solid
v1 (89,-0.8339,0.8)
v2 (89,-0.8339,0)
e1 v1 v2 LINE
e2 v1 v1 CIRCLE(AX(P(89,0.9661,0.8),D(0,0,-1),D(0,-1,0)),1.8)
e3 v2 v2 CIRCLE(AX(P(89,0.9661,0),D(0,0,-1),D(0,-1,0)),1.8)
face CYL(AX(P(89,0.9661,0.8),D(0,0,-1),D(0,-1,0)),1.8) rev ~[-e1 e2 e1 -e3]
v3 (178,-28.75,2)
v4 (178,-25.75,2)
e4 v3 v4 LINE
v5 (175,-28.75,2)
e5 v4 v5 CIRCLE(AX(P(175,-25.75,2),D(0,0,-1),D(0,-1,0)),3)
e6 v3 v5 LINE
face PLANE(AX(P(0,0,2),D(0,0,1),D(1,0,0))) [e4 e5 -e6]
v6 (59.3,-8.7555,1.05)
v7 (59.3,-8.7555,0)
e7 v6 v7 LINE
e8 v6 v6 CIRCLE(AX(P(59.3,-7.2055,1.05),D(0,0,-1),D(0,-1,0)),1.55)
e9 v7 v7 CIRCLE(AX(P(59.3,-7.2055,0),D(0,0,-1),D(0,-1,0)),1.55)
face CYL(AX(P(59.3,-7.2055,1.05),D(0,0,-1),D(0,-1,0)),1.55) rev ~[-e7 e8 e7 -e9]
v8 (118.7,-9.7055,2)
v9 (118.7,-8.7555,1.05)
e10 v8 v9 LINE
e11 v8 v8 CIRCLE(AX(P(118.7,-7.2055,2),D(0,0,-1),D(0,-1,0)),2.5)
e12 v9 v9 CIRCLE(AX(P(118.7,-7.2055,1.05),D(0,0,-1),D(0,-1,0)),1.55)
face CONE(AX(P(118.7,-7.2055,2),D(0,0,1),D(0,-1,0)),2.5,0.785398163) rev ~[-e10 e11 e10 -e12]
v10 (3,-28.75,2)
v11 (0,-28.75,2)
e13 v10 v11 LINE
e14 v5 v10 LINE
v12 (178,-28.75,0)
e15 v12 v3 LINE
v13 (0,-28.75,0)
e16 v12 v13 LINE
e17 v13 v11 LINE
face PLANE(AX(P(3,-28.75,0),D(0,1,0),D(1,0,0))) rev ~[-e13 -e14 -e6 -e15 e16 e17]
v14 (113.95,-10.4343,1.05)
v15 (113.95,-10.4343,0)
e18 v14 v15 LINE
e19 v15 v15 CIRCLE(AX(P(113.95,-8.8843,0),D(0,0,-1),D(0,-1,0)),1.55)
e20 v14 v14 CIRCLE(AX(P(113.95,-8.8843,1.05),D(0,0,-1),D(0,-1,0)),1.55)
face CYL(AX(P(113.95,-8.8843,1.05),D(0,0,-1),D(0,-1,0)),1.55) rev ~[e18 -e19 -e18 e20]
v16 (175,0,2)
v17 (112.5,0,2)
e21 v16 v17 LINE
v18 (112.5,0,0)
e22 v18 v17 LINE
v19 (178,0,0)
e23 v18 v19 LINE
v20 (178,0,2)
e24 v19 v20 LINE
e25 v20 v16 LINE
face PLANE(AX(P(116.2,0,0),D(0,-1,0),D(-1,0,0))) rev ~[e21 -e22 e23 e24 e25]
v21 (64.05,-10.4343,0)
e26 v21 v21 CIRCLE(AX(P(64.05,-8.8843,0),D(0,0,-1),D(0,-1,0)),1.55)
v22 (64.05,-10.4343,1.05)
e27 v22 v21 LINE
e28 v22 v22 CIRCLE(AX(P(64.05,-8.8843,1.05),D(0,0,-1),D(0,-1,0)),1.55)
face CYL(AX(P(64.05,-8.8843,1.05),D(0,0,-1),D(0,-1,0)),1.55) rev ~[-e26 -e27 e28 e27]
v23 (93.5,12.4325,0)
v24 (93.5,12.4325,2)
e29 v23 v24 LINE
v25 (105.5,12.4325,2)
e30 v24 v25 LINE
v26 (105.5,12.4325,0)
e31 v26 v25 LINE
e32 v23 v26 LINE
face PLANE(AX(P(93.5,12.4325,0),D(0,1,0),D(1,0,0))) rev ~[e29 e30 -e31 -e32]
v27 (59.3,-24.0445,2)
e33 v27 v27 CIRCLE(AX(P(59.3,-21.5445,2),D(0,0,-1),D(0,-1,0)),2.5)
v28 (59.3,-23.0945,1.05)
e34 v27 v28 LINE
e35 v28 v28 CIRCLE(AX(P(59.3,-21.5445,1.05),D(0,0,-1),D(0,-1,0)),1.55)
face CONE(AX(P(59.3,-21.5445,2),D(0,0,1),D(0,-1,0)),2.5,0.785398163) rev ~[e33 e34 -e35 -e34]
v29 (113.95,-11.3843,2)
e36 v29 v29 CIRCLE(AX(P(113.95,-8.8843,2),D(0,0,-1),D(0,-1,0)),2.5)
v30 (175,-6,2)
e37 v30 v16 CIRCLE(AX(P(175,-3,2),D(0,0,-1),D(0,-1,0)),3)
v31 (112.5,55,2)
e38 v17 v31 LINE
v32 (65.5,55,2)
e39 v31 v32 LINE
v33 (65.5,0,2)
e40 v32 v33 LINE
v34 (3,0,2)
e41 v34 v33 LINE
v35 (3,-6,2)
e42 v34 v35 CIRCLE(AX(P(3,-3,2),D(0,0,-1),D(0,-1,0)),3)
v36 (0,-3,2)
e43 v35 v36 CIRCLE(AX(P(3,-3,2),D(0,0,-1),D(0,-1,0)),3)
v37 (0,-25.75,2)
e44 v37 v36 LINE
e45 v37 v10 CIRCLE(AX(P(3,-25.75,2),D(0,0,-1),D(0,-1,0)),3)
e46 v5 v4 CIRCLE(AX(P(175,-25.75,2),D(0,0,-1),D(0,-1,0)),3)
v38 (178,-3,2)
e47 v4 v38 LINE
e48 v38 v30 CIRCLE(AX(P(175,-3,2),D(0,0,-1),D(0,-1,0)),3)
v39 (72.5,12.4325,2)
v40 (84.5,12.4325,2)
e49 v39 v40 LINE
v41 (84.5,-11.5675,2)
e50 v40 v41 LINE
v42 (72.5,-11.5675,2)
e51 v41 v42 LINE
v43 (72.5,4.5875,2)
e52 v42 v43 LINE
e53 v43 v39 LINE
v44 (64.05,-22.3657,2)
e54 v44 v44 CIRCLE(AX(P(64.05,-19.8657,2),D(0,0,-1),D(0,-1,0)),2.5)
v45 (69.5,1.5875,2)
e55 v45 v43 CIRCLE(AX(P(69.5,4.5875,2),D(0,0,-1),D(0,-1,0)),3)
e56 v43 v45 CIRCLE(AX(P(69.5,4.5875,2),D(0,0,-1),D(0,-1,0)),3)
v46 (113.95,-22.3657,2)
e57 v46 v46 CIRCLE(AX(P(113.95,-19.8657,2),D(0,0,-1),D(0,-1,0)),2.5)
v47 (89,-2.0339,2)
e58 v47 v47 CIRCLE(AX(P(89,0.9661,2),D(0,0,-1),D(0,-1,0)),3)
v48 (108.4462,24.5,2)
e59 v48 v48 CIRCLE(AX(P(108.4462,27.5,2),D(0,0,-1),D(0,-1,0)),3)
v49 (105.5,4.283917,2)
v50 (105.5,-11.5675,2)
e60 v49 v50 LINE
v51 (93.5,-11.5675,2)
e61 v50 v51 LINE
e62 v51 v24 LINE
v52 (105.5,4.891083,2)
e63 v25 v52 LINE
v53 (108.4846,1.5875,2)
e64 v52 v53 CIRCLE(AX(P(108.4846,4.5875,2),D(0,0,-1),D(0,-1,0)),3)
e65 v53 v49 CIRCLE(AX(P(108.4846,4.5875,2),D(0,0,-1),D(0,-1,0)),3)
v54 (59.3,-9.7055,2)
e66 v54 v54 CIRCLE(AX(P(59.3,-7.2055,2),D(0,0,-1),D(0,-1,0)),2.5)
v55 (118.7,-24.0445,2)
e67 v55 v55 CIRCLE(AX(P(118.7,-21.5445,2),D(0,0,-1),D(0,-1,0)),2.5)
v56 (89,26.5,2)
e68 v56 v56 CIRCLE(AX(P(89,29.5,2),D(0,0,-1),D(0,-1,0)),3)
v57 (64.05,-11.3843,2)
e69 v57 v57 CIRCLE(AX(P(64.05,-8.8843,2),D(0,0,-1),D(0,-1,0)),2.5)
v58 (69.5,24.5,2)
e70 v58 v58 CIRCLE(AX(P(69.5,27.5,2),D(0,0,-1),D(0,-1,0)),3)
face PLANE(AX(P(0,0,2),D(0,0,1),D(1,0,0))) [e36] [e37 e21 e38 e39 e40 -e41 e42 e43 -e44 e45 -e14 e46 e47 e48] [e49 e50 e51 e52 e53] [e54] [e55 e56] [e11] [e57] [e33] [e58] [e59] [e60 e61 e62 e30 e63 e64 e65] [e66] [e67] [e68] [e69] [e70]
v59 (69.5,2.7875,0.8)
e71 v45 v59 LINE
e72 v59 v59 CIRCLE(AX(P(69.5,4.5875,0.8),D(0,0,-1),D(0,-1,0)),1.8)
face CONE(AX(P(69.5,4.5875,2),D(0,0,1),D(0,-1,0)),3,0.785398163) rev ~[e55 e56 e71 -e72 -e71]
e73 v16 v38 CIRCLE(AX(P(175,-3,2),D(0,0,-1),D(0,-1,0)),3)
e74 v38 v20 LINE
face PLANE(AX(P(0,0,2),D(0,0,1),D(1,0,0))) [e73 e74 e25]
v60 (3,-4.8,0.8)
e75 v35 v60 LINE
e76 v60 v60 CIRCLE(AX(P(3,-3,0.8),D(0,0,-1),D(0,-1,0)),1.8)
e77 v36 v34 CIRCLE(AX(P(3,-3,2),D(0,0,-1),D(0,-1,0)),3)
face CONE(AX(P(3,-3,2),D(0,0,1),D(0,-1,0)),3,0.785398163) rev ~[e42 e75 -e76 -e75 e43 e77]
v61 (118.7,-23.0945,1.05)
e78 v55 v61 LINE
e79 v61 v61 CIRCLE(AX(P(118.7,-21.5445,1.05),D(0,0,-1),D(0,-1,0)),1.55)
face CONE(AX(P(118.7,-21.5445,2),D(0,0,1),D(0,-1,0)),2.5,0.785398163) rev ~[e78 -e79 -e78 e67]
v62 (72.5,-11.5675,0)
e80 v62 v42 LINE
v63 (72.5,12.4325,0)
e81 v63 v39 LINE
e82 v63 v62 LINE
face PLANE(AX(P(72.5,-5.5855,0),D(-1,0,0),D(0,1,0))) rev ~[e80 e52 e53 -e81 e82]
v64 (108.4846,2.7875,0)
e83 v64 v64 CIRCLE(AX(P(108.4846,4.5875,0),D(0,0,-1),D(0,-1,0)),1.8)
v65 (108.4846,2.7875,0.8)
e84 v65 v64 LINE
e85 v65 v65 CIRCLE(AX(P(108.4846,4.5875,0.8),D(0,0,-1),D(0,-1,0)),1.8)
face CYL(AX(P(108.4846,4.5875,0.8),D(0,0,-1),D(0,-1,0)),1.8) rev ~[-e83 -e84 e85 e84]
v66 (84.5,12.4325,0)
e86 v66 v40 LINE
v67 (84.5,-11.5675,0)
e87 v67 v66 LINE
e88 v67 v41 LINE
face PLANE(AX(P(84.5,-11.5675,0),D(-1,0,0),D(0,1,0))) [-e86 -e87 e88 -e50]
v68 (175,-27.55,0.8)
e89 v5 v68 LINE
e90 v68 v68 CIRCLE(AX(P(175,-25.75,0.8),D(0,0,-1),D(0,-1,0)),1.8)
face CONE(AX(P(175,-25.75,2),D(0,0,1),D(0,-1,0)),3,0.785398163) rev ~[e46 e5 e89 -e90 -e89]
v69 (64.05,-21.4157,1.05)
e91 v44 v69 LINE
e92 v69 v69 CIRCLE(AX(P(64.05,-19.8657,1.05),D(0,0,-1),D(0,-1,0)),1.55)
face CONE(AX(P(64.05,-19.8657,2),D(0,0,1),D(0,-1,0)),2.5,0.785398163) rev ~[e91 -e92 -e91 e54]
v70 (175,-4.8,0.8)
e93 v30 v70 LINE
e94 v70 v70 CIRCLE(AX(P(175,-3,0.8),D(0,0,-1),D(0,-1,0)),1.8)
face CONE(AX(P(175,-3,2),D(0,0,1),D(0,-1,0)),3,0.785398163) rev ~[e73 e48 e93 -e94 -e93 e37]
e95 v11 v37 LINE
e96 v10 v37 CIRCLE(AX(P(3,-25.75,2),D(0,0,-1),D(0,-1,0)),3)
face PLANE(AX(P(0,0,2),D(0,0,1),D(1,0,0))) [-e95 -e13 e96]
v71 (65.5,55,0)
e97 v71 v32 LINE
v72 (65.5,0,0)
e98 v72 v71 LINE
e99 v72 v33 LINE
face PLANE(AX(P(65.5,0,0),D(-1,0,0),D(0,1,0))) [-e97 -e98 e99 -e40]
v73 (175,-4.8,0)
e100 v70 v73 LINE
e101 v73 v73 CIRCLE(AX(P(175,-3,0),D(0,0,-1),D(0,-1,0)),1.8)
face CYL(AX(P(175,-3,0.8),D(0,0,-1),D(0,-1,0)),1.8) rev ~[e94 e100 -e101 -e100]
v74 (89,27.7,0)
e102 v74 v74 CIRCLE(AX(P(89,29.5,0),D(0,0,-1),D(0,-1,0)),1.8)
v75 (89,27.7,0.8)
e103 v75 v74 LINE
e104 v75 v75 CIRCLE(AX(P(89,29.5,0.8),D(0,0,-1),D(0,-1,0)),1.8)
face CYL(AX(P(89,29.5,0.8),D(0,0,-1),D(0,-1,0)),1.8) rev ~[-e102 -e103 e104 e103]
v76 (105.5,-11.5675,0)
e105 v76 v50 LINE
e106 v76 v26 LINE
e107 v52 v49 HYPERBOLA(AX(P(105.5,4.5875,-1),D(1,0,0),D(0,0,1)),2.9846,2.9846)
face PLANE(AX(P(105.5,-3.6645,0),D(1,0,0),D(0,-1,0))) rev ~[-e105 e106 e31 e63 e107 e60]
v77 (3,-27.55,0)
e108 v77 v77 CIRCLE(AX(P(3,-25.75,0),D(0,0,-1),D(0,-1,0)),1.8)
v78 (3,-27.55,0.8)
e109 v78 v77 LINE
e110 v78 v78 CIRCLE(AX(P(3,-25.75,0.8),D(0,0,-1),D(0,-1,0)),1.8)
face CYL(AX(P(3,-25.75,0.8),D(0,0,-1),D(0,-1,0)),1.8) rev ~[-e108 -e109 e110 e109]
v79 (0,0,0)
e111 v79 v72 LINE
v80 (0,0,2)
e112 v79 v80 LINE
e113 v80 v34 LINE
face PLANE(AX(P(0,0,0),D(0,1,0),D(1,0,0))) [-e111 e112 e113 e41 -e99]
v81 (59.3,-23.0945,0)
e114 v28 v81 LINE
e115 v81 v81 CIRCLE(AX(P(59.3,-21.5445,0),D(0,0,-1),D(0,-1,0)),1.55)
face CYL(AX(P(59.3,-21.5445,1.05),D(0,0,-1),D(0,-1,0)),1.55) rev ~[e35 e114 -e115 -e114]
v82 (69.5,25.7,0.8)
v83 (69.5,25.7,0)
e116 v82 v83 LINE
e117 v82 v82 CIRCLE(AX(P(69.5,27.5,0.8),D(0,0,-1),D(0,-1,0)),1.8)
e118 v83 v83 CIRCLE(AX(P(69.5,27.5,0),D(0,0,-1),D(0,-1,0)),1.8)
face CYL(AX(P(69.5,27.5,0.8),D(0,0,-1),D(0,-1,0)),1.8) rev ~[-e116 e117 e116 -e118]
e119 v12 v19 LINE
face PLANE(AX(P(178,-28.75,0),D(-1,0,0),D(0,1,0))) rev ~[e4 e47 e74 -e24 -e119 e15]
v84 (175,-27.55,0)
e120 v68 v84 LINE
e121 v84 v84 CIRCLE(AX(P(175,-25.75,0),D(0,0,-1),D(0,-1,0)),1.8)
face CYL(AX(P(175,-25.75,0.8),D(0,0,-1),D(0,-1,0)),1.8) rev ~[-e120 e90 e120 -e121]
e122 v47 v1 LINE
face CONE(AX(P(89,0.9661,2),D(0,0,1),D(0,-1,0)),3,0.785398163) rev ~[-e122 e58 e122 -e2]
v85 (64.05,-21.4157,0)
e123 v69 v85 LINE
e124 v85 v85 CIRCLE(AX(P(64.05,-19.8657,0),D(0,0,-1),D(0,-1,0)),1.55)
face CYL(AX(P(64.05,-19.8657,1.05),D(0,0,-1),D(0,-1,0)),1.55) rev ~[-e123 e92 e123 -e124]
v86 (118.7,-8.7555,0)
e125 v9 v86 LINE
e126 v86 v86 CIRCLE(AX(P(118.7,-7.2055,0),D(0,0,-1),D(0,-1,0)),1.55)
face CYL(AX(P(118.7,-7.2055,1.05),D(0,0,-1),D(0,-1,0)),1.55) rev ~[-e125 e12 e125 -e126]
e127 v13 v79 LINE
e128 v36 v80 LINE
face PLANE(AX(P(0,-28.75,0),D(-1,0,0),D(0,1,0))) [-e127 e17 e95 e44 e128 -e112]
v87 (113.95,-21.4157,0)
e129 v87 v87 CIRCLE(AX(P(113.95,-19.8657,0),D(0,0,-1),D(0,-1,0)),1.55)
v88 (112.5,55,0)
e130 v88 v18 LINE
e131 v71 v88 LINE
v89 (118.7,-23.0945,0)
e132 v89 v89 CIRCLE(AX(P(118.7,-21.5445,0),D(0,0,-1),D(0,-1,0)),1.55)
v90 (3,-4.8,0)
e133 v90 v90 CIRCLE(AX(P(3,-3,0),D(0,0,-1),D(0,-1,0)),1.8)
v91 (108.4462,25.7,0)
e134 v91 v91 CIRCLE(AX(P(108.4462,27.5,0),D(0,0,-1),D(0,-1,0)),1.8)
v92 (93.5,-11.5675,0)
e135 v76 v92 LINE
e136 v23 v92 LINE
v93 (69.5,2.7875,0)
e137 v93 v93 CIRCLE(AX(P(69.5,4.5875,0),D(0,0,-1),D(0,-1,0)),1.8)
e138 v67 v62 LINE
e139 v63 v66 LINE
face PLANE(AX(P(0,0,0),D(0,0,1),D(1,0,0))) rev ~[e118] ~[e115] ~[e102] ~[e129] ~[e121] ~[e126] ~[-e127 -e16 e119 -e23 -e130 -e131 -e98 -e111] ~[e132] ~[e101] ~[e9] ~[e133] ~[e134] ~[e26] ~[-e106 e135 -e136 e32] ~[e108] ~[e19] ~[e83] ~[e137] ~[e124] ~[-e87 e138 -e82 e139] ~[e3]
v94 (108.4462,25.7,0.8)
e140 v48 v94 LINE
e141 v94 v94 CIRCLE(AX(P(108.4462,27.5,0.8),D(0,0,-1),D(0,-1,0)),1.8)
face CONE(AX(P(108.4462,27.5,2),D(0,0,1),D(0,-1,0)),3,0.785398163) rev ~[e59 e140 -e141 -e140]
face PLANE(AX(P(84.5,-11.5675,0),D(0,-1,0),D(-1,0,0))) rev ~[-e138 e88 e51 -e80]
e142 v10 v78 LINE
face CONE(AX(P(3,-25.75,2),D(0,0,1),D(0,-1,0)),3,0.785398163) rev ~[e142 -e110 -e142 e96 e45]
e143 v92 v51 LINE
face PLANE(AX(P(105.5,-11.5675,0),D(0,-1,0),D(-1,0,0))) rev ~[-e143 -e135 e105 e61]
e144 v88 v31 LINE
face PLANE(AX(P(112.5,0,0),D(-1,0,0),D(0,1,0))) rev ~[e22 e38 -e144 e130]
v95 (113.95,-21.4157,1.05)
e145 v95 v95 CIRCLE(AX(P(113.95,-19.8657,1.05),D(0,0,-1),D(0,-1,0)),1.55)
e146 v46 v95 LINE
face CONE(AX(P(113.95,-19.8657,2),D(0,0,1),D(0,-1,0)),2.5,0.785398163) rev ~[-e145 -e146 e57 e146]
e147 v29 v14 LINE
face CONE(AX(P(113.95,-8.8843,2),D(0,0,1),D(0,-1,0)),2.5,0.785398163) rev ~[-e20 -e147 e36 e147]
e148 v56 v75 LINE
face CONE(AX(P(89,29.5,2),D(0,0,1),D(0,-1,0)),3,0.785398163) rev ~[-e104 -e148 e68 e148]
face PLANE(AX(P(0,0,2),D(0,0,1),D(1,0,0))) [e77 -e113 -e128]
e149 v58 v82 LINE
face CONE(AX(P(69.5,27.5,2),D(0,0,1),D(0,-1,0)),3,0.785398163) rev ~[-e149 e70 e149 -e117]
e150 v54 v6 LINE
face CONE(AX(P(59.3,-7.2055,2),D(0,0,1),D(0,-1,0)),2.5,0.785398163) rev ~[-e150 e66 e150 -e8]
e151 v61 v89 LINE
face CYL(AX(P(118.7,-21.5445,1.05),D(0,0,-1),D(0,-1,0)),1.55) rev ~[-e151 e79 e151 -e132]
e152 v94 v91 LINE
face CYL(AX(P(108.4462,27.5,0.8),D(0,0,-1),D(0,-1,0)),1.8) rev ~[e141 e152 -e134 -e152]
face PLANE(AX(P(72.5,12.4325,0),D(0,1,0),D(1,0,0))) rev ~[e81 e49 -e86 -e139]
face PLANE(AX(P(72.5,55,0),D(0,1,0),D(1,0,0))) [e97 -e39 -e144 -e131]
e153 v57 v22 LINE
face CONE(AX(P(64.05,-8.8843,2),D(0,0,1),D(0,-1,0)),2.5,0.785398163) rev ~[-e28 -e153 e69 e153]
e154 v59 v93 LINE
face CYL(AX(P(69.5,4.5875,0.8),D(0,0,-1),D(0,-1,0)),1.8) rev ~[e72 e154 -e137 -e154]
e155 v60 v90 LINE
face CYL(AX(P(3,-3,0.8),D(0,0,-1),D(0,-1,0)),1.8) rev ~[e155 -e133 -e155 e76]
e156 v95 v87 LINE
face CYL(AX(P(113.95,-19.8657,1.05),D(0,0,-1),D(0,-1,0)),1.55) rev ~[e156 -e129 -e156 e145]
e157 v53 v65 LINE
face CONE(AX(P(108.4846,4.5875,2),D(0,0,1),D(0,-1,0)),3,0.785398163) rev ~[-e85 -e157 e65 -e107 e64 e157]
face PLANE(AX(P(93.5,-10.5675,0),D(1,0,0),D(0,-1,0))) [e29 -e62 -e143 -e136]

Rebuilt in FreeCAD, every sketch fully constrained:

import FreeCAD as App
import Part
import Sketcher
from FreeCAD import Vector


def add_polygon(sketch, points):
    """Adds a closed chain of lines whose ends are joined by coincident constraints."""
    first, n = sketch.GeometryCount, len(points)
    for a, b in zip(points, points[1:] + points[:1]):
        sketch.addGeometry(Part.LineSegment(App.Vector(*a, 0), App.Vector(*b, 0)), False)
    for i in range(n):
        sketch.addConstraint(Sketcher.Constraint("Coincident", first + i, 2, first + (i + 1) % n, 1))

doc = App.newDocument("Part")
body = doc.addObject("PartDesign::Body", "Body")

# Sketch on XY plane
sketch1 = doc.addObject("Sketcher::SketchObject", "Sketch")
body.addObject(sketch1)
sketch1.AttachmentSupport = (doc.XY_Plane, [""])
sketch1.MapMode = "FlatFace"
add_polygon(sketch1, [(0, 0), (0, -29), (178, -29), (178, 0), (112, 0), (112, 55), (66, 55), (66, 0)])  # lines 0-7
add_polygon(sketch1, [(72, 12), (84, 12), (84, -12), (72, -12)])  # lines 8-11
add_polygon(sketch1, [(106, -12), (94, -12), (94, 12), (106, 12)])  # lines 12-15
sketch1.addConstraint([
    Sketcher.Constraint("Vertical", 0),
    Sketcher.Constraint("Horizontal", 1),
    Sketcher.Constraint("Vertical", 2),
    Sketcher.Constraint("Horizontal", 3),
    Sketcher.Constraint("Vertical", 4),
    Sketcher.Constraint("Horizontal", 5),
    Sketcher.Constraint("Vertical", 6),
    Sketcher.Constraint("Horizontal", 7),
    Sketcher.Constraint("Horizontal", 8),
    Sketcher.Constraint("Vertical", 9),
    Sketcher.Constraint("Horizontal", 10),
    Sketcher.Constraint("Vertical", 11),
    Sketcher.Constraint("Horizontal", 12),
    Sketcher.Constraint("Vertical", 13),
    Sketcher.Constraint("Horizontal", 14),
    Sketcher.Constraint("Vertical", 15),
    Sketcher.Constraint("Coincident", 7, 2, -1, 1),
    Sketcher.Constraint("PointOnObject", 2, 2, -1),
    Sketcher.Constraint("Horizontal", 10, 2, 12, 2),
    Sketcher.Constraint("Horizontal", 11, 2, 13, 2),
    Sketcher.Constraint("Equal", 3, 7),
    Sketcher.Constraint("Equal", 10, 12),
    Sketcher.Constraint("DistanceX", 1, 1, 1, 2, 178.0),
    Sketcher.Constraint("DistanceX", 5, 2, 5, 1, 47.0),
    Sketcher.Constraint("DistanceX", 8, 1, 8, 2, 12.0),
    Sketcher.Constraint("DistanceY", 4, 1, 4, 2, 55.0),
    Sketcher.Constraint("DistanceY", 9, 2, 9, 1, 24.0),
    Sketcher.Constraint("DistanceX", 6, 2, 8, 2, 19.0),
    Sketcher.Constraint("DistanceX", 9, 2, 12, 2, 9.0),
    Sketcher.Constraint("DistanceY", 0, 2, 0, 1, 28.75),
    Sketcher.Constraint("DistanceY", -1, 1, 8, 2, 12.4325),
])
pad1 = doc.addObject("PartDesign::Pad", "Pad")
body.addObject(pad1)
pad1.Profile = sketch1
pad1.Length = 2

# Sketch on XY plane
sketch2 = doc.addObject("Sketcher::SketchObject", "Sketch001")
body.addObject(sketch2)
sketch2.AttachmentSupport = (doc.XY_Plane, [""])
sketch2.MapMode = "FlatFace"
sketch2.AttachmentOffset = App.Placement(Vector(0, 0, 2), App.Rotation())
sketch2.addGeometry([
    Part.Circle(Vector(3, -3, 0), Vector(0, 0, 1), 1.8),  # 0
    Part.Circle(Vector(3, -25.8, 0), Vector(0, 0, 1), 1.8),  # 1
    Part.Circle(Vector(175, -3, 0), Vector(0, 0, 1), 1.8),  # 2
    Part.Circle(Vector(175, -25.8, 0), Vector(0, 0, 1), 1.8),  # 3
    Part.Circle(Vector(108.5, 4.6, 0), Vector(0, 0, 1), 1.8),  # 4
    Part.Circle(Vector(89, 1, 0), Vector(0, 0, 1), 1.8),  # 5
    Part.Circle(Vector(69.5, 4.6, 0), Vector(0, 0, 1), 1.8),  # 6
    Part.Circle(Vector(69.5, 27.5, 0), Vector(0, 0, 1), 1.8),  # 7
    Part.Circle(Vector(89, 29.5, 0), Vector(0, 0, 1), 1.8),  # 8
    Part.Circle(Vector(108.4, 27.5, 0), Vector(0, 0, 1), 1.8),  # 9
], False)
sketch2.addConstraint([
    Sketcher.Constraint("Equal", 0, 1),
    Sketcher.Constraint("Equal", 1, 2),
    Sketcher.Constraint("Equal", 2, 3),
    Sketcher.Constraint("Equal", 3, 4),
    Sketcher.Constraint("Equal", 4, 5),
    Sketcher.Constraint("Equal", 5, 6),
    Sketcher.Constraint("Equal", 6, 7),
    Sketcher.Constraint("Equal", 7, 8),
    Sketcher.Constraint("Equal", 8, 9),
    Sketcher.Constraint("Horizontal", 0, 3, 2, 3),
    Sketcher.Constraint("Horizontal", 1, 3, 3, 3),
    Sketcher.Constraint("Horizontal", 4, 3, 6, 3),
    Sketcher.Constraint("Horizontal", 7, 3, 9, 3),
    Sketcher.Constraint("Vertical", 0, 3, 1, 3),
    Sketcher.Constraint("Vertical", 2, 3, 3, 3),
    Sketcher.Constraint("Vertical", 6, 3, 7, 3),
    Sketcher.Constraint("Vertical", 5, 3, 8, 3),
    Sketcher.Constraint("Diameter", 0, 3.6),
    Sketcher.Constraint("DistanceX", -1, 1, 0, 3, 3.0),
    Sketcher.Constraint("DistanceY", 0, 3, -1, 1, 3.0),
    Sketcher.Constraint("DistanceX", -1, 1, 2, 3, 175.0),
    Sketcher.Constraint("DistanceX", -1, 1, 5, 3, 89.0),
    Sketcher.Constraint("DistanceY", 7, 3, 8, 3, 2.0),
    Sketcher.Constraint("DistanceX", -1, 1, 6, 3, 69.5),
    Sketcher.Constraint("DistanceY", -1, 1, 7, 3, 27.5),
    Sketcher.Constraint("DistanceY", 1, 3, -1, 1, 25.75),
    Sketcher.Constraint("DistanceY", -1, 1, 5, 3, 0.966),
    Sketcher.Constraint("DistanceX", -1, 1, 4, 3, 108.4846),
    Sketcher.Constraint("DistanceY", -1, 1, 4, 3, 4.5875),
    Sketcher.Constraint("DistanceX", -1, 1, 9, 3, 108.4462),
])
doc.recompute()
hole = doc.addObject("PartDesign::Hole", "Hole")
body.addObject(hole)
hole.Profile = sketch2
hole.ThreadType = "None"
hole.Diameter = 3.6
hole.DepthType = "ThroughAll"
hole.HoleCutType = "Countersink"
hole.HoleCutDiameter = 6
hole.HoleCutCountersinkAngle = 90

# Sketch on XY plane
sketch3 = doc.addObject("Sketcher::SketchObject", "Sketch002")
body.addObject(sketch3)
sketch3.AttachmentSupport = (doc.XY_Plane, [""])
sketch3.MapMode = "FlatFace"
sketch3.AttachmentOffset = App.Placement(Vector(0, 0, 2), App.Rotation())
sketch3.addGeometry([
    Part.Circle(Vector(59.3, -7.2, 0), Vector(0, 0, 1), 1.6),  # 0
    Part.Circle(Vector(64, -8.9, 0), Vector(0, 0, 1), 1.6),  # 1
    Part.Circle(Vector(64, -19.9, 0), Vector(0, 0, 1), 1.6),  # 2
    Part.Circle(Vector(59.3, -21.5, 0), Vector(0, 0, 1), 1.6),  # 3
    Part.Circle(Vector(114, -8.9, 0), Vector(0, 0, 1), 1.6),  # 4
    Part.Circle(Vector(118.7, -7.2, 0), Vector(0, 0, 1), 1.6),  # 5
    Part.Circle(Vector(118.7, -21.5, 0), Vector(0, 0, 1), 1.6),  # 6
    Part.Circle(Vector(114, -19.9, 0), Vector(0, 0, 1), 1.6),  # 7
], False)
sketch3.addConstraint([
    Sketcher.Constraint("Equal", 0, 1),
    Sketcher.Constraint("Equal", 1, 2),
    Sketcher.Constraint("Equal", 2, 3),
    Sketcher.Constraint("Equal", 3, 4),
    Sketcher.Constraint("Equal", 4, 5),
    Sketcher.Constraint("Equal", 5, 6),
    Sketcher.Constraint("Equal", 6, 7),
    Sketcher.Constraint("Horizontal", 1, 3, 4, 3),
    Sketcher.Constraint("Horizontal", 0, 3, 5, 3),
    Sketcher.Constraint("Horizontal", 3, 3, 6, 3),
    Sketcher.Constraint("Horizontal", 2, 3, 7, 3),
    Sketcher.Constraint("Vertical", 1, 3, 2, 3),
    Sketcher.Constraint("Vertical", 0, 3, 3, 3),
    Sketcher.Constraint("Vertical", 5, 3, 6, 3),
    Sketcher.Constraint("Vertical", 4, 3, 7, 3),
    Sketcher.Constraint("Diameter", 0, 3.1),
    Sketcher.Constraint("DistanceX", -1, 1, 0, 3, 59.3),
    Sketcher.Constraint("DistanceX", -1, 1, 5, 3, 118.7),
    Sketcher.Constraint("DistanceX", 1, 3, 4, 3, 49.9),
    Sketcher.Constraint("DistanceX", -1, 1, 1, 3, 64.05),
    Sketcher.Constraint("DistanceY", 3, 3, 0, 3, 14.339),
    Sketcher.Constraint("DistanceY", 0, 3, -1, 1, 7.2055),
    Sketcher.Constraint("DistanceY", 1, 3, -1, 1, 8.8843),
    Sketcher.Constraint("DistanceY", 2, 3, -1, 1, 19.8657),
])
doc.recompute()
hole2 = doc.addObject("PartDesign::Hole", "Hole001")
body.addObject(hole2)
hole2.Profile = sketch3
hole2.ThreadType = "None"
hole2.Diameter = 3.1
hole2.DepthType = "ThroughAll"
hole2.HoleCutType = "Countersink"
hole2.HoleCutDiameter = 5
hole2.HoleCutCountersinkAngle = 90

doc.recompute()
